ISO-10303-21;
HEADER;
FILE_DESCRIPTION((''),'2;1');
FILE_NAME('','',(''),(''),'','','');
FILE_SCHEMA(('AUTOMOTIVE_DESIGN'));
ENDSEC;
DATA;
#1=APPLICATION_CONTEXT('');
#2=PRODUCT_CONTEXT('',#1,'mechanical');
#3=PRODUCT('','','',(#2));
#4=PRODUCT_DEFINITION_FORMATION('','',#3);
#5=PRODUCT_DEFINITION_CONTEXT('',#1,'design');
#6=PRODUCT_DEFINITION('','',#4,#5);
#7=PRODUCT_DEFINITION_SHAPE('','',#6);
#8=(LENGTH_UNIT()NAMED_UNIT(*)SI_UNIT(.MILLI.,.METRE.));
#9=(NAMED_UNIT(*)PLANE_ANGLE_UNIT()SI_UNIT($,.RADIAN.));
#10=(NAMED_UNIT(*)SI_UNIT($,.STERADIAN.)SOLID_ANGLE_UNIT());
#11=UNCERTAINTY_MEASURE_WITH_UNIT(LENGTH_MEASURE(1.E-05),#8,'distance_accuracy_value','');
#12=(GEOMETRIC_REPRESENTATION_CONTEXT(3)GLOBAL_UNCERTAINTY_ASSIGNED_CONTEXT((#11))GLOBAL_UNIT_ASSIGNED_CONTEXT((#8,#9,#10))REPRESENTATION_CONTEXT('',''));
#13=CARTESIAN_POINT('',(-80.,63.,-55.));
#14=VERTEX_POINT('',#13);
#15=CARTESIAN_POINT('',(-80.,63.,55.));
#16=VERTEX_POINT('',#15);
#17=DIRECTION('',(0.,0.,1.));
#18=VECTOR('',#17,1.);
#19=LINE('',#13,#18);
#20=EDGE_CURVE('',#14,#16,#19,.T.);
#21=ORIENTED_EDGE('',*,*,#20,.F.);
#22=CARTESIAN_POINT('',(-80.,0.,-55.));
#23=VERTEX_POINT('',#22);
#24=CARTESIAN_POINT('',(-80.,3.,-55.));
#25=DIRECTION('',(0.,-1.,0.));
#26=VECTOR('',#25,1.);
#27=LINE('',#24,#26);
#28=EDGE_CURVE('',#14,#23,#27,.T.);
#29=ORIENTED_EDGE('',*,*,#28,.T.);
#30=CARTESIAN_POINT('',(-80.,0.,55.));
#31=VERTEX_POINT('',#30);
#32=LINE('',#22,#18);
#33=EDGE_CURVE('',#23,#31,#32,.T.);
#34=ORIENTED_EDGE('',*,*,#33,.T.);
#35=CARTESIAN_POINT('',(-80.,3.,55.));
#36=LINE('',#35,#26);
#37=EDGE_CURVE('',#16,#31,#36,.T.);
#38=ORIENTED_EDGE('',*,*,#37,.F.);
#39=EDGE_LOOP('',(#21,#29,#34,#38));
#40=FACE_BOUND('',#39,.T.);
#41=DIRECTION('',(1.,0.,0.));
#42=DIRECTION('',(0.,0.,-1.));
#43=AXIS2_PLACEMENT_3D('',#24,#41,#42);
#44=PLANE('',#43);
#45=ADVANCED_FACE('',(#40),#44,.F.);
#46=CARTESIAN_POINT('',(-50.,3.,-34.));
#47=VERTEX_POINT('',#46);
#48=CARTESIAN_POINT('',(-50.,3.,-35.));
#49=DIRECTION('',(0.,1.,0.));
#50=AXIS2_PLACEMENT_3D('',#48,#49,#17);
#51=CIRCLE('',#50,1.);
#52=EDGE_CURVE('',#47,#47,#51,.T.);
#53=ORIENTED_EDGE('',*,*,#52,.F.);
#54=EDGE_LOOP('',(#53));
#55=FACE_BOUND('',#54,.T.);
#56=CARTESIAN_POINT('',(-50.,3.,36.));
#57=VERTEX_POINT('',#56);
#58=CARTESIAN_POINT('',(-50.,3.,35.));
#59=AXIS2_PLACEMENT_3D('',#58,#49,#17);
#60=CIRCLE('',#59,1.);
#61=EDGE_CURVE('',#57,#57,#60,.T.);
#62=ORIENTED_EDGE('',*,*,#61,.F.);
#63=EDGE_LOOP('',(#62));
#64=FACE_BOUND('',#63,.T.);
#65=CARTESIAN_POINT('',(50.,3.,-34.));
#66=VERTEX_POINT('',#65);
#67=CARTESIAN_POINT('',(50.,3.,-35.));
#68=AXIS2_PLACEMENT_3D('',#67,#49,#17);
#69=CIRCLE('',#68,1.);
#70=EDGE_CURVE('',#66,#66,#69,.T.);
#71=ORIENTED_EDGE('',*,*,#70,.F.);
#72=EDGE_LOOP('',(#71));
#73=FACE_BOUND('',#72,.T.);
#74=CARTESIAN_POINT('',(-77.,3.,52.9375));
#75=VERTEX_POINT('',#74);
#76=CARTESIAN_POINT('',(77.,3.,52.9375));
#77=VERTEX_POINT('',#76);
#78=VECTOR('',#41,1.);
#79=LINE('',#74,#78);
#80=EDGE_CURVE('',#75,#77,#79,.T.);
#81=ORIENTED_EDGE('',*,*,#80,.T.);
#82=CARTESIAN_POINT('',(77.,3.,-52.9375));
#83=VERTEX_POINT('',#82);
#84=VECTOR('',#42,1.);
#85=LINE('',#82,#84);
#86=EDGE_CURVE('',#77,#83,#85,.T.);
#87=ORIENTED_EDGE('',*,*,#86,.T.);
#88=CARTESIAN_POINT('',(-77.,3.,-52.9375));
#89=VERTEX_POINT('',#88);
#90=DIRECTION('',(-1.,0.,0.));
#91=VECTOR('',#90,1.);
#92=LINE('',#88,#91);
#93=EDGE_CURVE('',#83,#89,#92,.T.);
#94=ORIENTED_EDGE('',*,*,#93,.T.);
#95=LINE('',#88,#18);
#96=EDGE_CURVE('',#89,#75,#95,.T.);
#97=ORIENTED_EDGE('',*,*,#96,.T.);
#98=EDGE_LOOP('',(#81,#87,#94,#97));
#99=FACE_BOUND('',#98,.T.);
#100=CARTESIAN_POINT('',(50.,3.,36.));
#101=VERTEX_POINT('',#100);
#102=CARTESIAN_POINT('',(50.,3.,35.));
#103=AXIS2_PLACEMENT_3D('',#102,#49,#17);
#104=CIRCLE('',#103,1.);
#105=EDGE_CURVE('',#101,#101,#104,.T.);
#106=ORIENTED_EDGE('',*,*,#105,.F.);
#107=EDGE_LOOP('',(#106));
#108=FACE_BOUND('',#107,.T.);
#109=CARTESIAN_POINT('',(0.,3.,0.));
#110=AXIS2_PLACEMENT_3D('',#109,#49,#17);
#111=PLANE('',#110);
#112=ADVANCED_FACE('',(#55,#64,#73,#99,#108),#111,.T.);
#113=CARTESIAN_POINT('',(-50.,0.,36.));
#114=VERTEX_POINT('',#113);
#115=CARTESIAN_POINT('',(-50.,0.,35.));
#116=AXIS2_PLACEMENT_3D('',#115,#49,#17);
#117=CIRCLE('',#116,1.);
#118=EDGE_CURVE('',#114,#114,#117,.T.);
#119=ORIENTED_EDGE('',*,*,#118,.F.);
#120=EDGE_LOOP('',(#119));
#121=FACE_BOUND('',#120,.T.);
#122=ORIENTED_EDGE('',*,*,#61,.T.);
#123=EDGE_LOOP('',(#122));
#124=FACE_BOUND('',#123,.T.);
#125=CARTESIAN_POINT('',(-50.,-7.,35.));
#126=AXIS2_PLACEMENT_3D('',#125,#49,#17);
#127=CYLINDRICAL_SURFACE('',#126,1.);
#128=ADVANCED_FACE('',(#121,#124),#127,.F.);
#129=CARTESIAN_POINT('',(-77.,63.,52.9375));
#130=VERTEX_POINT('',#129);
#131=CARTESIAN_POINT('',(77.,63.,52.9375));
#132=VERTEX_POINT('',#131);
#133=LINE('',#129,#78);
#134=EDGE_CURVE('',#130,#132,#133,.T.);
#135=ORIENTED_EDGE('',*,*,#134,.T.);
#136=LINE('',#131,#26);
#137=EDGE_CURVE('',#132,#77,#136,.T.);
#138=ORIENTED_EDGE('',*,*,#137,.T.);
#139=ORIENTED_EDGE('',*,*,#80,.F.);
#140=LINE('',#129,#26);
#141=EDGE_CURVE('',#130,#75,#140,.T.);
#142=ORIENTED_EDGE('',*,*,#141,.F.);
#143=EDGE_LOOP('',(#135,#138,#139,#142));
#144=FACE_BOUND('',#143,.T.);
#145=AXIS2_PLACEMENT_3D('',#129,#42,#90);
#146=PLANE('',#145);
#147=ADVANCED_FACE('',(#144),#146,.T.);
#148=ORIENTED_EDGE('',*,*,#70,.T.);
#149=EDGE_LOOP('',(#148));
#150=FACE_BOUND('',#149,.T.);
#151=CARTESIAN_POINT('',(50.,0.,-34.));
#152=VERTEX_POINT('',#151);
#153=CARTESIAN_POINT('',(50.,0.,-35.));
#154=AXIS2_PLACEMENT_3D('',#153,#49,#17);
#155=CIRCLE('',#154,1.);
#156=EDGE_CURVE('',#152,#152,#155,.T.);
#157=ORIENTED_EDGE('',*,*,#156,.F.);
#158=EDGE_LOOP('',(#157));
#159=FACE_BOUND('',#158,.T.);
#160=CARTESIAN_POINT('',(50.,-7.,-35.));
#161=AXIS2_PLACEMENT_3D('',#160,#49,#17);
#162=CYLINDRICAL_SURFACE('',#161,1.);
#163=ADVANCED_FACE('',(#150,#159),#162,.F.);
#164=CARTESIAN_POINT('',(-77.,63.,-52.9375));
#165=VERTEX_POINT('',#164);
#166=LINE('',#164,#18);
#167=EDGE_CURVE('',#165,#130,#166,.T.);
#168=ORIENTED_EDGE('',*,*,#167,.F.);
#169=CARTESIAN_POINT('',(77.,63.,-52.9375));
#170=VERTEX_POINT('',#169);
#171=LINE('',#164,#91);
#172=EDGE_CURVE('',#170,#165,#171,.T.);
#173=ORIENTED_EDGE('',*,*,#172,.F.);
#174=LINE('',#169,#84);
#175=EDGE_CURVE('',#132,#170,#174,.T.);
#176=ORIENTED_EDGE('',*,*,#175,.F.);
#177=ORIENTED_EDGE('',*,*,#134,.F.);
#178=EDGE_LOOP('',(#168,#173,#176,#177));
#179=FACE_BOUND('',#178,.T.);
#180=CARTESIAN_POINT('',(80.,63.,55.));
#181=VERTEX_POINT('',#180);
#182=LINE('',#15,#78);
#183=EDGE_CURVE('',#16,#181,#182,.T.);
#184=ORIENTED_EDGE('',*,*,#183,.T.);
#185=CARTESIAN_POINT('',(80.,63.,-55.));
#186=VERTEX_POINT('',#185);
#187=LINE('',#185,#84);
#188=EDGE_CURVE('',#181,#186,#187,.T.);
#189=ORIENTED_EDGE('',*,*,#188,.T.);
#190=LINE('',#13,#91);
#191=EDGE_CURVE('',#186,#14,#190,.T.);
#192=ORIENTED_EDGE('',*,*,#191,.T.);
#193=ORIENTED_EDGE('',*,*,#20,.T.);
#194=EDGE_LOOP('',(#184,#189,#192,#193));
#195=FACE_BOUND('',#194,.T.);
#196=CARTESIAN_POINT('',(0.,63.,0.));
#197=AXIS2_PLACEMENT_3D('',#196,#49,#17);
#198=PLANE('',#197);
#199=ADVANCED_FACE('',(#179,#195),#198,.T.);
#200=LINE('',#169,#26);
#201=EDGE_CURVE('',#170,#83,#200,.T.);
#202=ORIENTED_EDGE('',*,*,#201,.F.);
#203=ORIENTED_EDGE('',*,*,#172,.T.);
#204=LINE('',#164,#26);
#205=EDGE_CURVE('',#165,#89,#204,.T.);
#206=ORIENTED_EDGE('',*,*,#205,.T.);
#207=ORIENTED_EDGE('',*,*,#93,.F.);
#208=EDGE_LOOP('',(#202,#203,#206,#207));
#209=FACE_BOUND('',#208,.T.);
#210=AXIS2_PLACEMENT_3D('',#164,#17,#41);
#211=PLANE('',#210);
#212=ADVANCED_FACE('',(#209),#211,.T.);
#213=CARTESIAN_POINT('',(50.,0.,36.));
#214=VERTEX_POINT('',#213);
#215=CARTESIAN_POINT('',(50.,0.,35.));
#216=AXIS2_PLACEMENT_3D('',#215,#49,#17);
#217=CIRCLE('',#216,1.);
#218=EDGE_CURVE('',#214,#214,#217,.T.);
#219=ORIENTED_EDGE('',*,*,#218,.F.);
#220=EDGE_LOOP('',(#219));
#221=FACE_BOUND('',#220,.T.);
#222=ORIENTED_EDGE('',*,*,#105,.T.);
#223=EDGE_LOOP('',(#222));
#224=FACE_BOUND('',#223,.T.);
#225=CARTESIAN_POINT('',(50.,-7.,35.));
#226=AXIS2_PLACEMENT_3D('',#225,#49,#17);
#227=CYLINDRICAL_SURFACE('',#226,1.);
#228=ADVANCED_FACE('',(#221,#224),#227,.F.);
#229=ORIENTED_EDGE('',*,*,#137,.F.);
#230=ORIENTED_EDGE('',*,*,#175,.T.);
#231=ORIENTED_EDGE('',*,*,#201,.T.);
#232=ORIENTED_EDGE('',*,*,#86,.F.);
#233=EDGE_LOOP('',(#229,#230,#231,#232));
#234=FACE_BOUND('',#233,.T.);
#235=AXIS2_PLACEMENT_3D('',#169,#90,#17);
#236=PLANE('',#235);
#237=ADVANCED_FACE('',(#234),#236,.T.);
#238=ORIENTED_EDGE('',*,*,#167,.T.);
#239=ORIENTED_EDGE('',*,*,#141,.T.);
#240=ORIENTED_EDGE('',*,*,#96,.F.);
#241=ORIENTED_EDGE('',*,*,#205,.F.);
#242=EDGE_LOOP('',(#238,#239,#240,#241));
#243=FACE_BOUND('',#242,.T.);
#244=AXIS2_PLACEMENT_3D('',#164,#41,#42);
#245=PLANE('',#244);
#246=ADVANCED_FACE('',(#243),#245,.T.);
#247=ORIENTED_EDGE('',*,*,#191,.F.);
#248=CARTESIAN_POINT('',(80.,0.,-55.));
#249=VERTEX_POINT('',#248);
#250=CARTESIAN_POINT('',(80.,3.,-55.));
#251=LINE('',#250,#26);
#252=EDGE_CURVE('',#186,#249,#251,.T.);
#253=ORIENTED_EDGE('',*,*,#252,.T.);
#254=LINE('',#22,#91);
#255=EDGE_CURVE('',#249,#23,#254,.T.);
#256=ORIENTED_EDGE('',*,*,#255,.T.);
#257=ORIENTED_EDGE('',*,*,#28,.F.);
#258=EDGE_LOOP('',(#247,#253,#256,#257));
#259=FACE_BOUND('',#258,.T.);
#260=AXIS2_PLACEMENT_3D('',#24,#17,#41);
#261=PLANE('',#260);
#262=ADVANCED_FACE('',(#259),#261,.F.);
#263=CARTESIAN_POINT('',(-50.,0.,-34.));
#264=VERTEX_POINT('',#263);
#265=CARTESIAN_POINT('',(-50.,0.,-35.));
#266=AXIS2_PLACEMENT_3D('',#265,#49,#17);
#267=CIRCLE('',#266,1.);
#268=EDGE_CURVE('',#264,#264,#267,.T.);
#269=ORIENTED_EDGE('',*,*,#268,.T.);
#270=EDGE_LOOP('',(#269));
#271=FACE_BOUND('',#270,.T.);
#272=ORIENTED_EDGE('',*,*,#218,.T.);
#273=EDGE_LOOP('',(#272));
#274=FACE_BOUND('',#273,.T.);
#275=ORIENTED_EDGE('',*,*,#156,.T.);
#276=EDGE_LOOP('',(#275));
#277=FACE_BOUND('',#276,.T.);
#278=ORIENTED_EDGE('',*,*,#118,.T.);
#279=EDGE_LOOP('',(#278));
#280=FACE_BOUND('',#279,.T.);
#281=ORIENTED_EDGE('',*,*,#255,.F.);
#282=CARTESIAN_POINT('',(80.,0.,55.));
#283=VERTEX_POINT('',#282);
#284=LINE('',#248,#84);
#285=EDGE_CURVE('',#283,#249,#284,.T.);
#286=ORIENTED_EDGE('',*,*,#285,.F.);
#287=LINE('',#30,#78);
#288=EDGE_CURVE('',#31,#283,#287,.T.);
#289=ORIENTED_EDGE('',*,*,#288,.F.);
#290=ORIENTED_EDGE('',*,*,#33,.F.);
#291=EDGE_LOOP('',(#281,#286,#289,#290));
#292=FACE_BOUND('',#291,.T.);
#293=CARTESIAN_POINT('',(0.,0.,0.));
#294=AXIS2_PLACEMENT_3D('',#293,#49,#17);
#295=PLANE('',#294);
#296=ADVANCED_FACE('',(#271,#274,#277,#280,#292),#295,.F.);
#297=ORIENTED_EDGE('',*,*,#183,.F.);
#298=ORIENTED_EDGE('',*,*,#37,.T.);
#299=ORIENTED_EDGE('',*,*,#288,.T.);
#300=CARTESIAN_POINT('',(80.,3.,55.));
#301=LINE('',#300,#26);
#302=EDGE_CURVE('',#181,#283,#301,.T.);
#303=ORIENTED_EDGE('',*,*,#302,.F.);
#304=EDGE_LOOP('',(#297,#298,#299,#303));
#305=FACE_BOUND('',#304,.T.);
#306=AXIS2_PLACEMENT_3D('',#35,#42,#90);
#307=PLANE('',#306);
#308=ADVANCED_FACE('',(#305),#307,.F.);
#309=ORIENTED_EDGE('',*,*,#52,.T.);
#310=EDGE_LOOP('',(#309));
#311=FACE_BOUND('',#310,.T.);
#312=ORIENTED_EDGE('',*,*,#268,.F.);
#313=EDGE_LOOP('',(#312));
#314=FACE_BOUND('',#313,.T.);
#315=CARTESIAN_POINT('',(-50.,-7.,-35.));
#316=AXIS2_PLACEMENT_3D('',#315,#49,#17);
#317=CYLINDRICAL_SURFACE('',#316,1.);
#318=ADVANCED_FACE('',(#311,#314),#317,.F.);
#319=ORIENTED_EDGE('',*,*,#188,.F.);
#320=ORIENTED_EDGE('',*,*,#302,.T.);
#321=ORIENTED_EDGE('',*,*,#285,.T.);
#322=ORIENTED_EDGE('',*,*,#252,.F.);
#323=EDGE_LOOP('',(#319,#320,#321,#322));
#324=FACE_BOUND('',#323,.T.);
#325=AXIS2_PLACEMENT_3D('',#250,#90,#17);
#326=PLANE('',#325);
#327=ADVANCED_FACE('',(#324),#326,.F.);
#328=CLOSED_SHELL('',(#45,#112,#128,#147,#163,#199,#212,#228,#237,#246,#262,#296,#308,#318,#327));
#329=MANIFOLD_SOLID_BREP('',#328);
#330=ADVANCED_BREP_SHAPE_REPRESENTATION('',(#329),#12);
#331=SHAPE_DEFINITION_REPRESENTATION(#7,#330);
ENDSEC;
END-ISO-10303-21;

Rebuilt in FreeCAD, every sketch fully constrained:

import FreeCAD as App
import Part
import Sketcher

V = App.Vector


def add_polygon(sketch, points):
    """Adds a closed chain of lines whose ends are joined by coincident constraints."""
    first, n = sketch.GeometryCount, len(points)
    for a, b in zip(points, points[1:] + points[:1]):
        sketch.addGeometry(Part.LineSegment(App.Vector(*a, 0), App.Vector(*b, 0)), False)
    for i in range(n):
        sketch.addConstraint(Sketcher.Constraint("Coincident", first + i, 2, first + (i + 1) % n, 1))

doc = App.newDocument("Part")
params = doc.addObject("Spreadsheet::Sheet", "Params")
for row, (alias, value) in enumerate([
    ("sketch1_width", "160 mm"),
    ("sketch1_height", "110 mm"),
    ("pad1_length", "3 mm"),
    ("sketch2_width", "160 mm"),
    ("sketch2_width2", "154 mm"),
    ("sketch2_height", "110 mm"),
    ("pad2_length", "60 mm"),
    ("sketch3_diameter", "2 mm"),
    ("pocket1_length", "10 mm"),
], start=1):
    params.set(f"A{row}", alias)
    params.set(f"B{row}", "=" + value)
    params.setAlias(f"B{row}", alias)

body = doc.addObject("PartDesign::Body", "Body")

# Sketch on XZ plane
sketch1 = doc.addObject("Sketcher::SketchObject", "Sketch")
body.addObject(sketch1)
sketch1.AttachmentSupport = (doc.XZ_Plane, [""])
sketch1.MapMode = "FlatFace"
add_polygon(sketch1, [(-80, -55), (-80, 55), (80, 55), (80, -55)])  # lines 0-3
sketch1.addConstraint([
    Sketcher.Constraint("Vertical", 0),
    Sketcher.Constraint("Horizontal", 1),
    Sketcher.Constraint("Vertical", 2),
    Sketcher.Constraint("Horizontal", 3),
    Sketcher.Constraint("Symmetric", 0, 2, 2, 2, -1, 1),
    Sketcher.Constraint("DistanceX", 1, 1, 1, 2, 160.0),
    Sketcher.Constraint("DistanceY", 0, 1, 0, 2, 110.0),
])
sketch1.setExpression("Constraints[9]", "Params.sketch1_width")
sketch1.setExpression("Constraints[10]", "Params.sketch1_height")
pad1 = doc.addObject("PartDesign::Pad", "Pad")
body.addObject(pad1)
pad1.Profile = sketch1
pad1.setExpression("Length", "Params.pad1_length")
pad1.Reversed = True

# Sketch on XZ plane
sketch2 = doc.addObject("Sketcher::SketchObject", "Sketch001")
body.addObject(sketch2)
sketch2.AttachmentSupport = (doc.XZ_Plane, [""])
sketch2.MapMode = "FlatFace"
sketch2.AttachmentOffset = App.Placement(V(0, 0, -3), App.Rotation())
add_polygon(sketch2, [(-80, -55), (-80, 55), (80, 55), (80, -55)])  # lines 0-3
add_polygon(sketch2, [(77, 53), (-77, 53), (-77, -53), (77, -53)])  # lines 4-7
sketch2.addConstraint([
    Sketcher.Constraint("Vertical", 0),
    Sketcher.Constraint("Horizontal", 1),
    Sketcher.Constraint("Vertical", 2),
    Sketcher.Constraint("Horizontal", 3),
    Sketcher.Constraint("Horizontal", 4),
    Sketcher.Constraint("Vertical", 5),
    Sketcher.Constraint("Horizontal", 6),
    Sketcher.Constraint("Vertical", 7),
    Sketcher.Constraint("Symmetric", 0, 2, 2, 2, -1, 1),
    Sketcher.Constraint("Symmetric", 4, 2, 6, 2, -1, 1),
    Sketcher.Constraint("DistanceX", 1, 1, 1, 2, 160.0),
    Sketcher.Constraint("DistanceX", 4, 2, 4, 1, 154.0),
    Sketcher.Constraint("DistanceY", 0, 1, 0, 2, 110.0),
    Sketcher.Constraint("DistanceY", 5, 2, 5, 1, 105.875),
])
sketch2.setExpression("Constraints[18]", "Params.sketch2_width")
sketch2.setExpression("Constraints[19]", "Params.sketch2_width2")
sketch2.setExpression("Constraints[20]", "Params.sketch2_height")
pad2 = doc.addObject("PartDesign::Pad", "Pad001")
body.addObject(pad2)
pad2.Profile = sketch2
pad2.setExpression("Length", "Params.pad2_length")
pad2.Reversed = True

# Sketch on XZ plane
sketch3 = doc.addObject("Sketcher::SketchObject", "Sketch002")
body.addObject(sketch3)
sketch3.AttachmentSupport = (doc.XZ_Plane, [""])
sketch3.MapMode = "FlatFace"
sketch3.AttachmentOffset = App.Placement(V(0, 0, -3), App.Rotation())
sketch3.addGeometry([
    Part.Circle(V(-50, -35, 0), V(0, 0, 1), 1),
    Part.Circle(V(50, -35, 0), V(0, 0, 1), 1),
    Part.Circle(V(50, 35, 0), V(0, 0, 1), 1),
    Part.Circle(V(-50, 35, 0), V(0, 0, 1), 1),
], False)
sketch3.addConstraint([
    Sketcher.Constraint("Equal", 0, 1),
    Sketcher.Constraint("Equal", 1, 2),
    Sketcher.Constraint("Equal", 2, 3),
    Sketcher.Constraint("Symmetric", 0, 3, 2, 3, -1, 1),
    Sketcher.Constraint("Symmetric", 1, 3, 3, 3, -1, 1),
    Sketcher.Constraint("Symmetric", 0, 3, 1, 3, -2),
    Sketcher.Constraint("Diameter", 0, 2.0),
    Sketcher.Constraint("DistanceX", 0, 3, -1, 1, 50.0),
    Sketcher.Constraint("DistanceY", 0, 3, -1, 1, 35.0),
])
sketch3.setExpression("Constraints[6]", "Params.sketch3_diameter")
pocket1 = doc.addObject("PartDesign::Pocket", "Pocket")
body.addObject(pocket1)
pocket1.Profile = sketch3
pocket1.setExpression("Length", "Params.pocket1_length")
pocket1.Reversed = True

doc.recompute()
